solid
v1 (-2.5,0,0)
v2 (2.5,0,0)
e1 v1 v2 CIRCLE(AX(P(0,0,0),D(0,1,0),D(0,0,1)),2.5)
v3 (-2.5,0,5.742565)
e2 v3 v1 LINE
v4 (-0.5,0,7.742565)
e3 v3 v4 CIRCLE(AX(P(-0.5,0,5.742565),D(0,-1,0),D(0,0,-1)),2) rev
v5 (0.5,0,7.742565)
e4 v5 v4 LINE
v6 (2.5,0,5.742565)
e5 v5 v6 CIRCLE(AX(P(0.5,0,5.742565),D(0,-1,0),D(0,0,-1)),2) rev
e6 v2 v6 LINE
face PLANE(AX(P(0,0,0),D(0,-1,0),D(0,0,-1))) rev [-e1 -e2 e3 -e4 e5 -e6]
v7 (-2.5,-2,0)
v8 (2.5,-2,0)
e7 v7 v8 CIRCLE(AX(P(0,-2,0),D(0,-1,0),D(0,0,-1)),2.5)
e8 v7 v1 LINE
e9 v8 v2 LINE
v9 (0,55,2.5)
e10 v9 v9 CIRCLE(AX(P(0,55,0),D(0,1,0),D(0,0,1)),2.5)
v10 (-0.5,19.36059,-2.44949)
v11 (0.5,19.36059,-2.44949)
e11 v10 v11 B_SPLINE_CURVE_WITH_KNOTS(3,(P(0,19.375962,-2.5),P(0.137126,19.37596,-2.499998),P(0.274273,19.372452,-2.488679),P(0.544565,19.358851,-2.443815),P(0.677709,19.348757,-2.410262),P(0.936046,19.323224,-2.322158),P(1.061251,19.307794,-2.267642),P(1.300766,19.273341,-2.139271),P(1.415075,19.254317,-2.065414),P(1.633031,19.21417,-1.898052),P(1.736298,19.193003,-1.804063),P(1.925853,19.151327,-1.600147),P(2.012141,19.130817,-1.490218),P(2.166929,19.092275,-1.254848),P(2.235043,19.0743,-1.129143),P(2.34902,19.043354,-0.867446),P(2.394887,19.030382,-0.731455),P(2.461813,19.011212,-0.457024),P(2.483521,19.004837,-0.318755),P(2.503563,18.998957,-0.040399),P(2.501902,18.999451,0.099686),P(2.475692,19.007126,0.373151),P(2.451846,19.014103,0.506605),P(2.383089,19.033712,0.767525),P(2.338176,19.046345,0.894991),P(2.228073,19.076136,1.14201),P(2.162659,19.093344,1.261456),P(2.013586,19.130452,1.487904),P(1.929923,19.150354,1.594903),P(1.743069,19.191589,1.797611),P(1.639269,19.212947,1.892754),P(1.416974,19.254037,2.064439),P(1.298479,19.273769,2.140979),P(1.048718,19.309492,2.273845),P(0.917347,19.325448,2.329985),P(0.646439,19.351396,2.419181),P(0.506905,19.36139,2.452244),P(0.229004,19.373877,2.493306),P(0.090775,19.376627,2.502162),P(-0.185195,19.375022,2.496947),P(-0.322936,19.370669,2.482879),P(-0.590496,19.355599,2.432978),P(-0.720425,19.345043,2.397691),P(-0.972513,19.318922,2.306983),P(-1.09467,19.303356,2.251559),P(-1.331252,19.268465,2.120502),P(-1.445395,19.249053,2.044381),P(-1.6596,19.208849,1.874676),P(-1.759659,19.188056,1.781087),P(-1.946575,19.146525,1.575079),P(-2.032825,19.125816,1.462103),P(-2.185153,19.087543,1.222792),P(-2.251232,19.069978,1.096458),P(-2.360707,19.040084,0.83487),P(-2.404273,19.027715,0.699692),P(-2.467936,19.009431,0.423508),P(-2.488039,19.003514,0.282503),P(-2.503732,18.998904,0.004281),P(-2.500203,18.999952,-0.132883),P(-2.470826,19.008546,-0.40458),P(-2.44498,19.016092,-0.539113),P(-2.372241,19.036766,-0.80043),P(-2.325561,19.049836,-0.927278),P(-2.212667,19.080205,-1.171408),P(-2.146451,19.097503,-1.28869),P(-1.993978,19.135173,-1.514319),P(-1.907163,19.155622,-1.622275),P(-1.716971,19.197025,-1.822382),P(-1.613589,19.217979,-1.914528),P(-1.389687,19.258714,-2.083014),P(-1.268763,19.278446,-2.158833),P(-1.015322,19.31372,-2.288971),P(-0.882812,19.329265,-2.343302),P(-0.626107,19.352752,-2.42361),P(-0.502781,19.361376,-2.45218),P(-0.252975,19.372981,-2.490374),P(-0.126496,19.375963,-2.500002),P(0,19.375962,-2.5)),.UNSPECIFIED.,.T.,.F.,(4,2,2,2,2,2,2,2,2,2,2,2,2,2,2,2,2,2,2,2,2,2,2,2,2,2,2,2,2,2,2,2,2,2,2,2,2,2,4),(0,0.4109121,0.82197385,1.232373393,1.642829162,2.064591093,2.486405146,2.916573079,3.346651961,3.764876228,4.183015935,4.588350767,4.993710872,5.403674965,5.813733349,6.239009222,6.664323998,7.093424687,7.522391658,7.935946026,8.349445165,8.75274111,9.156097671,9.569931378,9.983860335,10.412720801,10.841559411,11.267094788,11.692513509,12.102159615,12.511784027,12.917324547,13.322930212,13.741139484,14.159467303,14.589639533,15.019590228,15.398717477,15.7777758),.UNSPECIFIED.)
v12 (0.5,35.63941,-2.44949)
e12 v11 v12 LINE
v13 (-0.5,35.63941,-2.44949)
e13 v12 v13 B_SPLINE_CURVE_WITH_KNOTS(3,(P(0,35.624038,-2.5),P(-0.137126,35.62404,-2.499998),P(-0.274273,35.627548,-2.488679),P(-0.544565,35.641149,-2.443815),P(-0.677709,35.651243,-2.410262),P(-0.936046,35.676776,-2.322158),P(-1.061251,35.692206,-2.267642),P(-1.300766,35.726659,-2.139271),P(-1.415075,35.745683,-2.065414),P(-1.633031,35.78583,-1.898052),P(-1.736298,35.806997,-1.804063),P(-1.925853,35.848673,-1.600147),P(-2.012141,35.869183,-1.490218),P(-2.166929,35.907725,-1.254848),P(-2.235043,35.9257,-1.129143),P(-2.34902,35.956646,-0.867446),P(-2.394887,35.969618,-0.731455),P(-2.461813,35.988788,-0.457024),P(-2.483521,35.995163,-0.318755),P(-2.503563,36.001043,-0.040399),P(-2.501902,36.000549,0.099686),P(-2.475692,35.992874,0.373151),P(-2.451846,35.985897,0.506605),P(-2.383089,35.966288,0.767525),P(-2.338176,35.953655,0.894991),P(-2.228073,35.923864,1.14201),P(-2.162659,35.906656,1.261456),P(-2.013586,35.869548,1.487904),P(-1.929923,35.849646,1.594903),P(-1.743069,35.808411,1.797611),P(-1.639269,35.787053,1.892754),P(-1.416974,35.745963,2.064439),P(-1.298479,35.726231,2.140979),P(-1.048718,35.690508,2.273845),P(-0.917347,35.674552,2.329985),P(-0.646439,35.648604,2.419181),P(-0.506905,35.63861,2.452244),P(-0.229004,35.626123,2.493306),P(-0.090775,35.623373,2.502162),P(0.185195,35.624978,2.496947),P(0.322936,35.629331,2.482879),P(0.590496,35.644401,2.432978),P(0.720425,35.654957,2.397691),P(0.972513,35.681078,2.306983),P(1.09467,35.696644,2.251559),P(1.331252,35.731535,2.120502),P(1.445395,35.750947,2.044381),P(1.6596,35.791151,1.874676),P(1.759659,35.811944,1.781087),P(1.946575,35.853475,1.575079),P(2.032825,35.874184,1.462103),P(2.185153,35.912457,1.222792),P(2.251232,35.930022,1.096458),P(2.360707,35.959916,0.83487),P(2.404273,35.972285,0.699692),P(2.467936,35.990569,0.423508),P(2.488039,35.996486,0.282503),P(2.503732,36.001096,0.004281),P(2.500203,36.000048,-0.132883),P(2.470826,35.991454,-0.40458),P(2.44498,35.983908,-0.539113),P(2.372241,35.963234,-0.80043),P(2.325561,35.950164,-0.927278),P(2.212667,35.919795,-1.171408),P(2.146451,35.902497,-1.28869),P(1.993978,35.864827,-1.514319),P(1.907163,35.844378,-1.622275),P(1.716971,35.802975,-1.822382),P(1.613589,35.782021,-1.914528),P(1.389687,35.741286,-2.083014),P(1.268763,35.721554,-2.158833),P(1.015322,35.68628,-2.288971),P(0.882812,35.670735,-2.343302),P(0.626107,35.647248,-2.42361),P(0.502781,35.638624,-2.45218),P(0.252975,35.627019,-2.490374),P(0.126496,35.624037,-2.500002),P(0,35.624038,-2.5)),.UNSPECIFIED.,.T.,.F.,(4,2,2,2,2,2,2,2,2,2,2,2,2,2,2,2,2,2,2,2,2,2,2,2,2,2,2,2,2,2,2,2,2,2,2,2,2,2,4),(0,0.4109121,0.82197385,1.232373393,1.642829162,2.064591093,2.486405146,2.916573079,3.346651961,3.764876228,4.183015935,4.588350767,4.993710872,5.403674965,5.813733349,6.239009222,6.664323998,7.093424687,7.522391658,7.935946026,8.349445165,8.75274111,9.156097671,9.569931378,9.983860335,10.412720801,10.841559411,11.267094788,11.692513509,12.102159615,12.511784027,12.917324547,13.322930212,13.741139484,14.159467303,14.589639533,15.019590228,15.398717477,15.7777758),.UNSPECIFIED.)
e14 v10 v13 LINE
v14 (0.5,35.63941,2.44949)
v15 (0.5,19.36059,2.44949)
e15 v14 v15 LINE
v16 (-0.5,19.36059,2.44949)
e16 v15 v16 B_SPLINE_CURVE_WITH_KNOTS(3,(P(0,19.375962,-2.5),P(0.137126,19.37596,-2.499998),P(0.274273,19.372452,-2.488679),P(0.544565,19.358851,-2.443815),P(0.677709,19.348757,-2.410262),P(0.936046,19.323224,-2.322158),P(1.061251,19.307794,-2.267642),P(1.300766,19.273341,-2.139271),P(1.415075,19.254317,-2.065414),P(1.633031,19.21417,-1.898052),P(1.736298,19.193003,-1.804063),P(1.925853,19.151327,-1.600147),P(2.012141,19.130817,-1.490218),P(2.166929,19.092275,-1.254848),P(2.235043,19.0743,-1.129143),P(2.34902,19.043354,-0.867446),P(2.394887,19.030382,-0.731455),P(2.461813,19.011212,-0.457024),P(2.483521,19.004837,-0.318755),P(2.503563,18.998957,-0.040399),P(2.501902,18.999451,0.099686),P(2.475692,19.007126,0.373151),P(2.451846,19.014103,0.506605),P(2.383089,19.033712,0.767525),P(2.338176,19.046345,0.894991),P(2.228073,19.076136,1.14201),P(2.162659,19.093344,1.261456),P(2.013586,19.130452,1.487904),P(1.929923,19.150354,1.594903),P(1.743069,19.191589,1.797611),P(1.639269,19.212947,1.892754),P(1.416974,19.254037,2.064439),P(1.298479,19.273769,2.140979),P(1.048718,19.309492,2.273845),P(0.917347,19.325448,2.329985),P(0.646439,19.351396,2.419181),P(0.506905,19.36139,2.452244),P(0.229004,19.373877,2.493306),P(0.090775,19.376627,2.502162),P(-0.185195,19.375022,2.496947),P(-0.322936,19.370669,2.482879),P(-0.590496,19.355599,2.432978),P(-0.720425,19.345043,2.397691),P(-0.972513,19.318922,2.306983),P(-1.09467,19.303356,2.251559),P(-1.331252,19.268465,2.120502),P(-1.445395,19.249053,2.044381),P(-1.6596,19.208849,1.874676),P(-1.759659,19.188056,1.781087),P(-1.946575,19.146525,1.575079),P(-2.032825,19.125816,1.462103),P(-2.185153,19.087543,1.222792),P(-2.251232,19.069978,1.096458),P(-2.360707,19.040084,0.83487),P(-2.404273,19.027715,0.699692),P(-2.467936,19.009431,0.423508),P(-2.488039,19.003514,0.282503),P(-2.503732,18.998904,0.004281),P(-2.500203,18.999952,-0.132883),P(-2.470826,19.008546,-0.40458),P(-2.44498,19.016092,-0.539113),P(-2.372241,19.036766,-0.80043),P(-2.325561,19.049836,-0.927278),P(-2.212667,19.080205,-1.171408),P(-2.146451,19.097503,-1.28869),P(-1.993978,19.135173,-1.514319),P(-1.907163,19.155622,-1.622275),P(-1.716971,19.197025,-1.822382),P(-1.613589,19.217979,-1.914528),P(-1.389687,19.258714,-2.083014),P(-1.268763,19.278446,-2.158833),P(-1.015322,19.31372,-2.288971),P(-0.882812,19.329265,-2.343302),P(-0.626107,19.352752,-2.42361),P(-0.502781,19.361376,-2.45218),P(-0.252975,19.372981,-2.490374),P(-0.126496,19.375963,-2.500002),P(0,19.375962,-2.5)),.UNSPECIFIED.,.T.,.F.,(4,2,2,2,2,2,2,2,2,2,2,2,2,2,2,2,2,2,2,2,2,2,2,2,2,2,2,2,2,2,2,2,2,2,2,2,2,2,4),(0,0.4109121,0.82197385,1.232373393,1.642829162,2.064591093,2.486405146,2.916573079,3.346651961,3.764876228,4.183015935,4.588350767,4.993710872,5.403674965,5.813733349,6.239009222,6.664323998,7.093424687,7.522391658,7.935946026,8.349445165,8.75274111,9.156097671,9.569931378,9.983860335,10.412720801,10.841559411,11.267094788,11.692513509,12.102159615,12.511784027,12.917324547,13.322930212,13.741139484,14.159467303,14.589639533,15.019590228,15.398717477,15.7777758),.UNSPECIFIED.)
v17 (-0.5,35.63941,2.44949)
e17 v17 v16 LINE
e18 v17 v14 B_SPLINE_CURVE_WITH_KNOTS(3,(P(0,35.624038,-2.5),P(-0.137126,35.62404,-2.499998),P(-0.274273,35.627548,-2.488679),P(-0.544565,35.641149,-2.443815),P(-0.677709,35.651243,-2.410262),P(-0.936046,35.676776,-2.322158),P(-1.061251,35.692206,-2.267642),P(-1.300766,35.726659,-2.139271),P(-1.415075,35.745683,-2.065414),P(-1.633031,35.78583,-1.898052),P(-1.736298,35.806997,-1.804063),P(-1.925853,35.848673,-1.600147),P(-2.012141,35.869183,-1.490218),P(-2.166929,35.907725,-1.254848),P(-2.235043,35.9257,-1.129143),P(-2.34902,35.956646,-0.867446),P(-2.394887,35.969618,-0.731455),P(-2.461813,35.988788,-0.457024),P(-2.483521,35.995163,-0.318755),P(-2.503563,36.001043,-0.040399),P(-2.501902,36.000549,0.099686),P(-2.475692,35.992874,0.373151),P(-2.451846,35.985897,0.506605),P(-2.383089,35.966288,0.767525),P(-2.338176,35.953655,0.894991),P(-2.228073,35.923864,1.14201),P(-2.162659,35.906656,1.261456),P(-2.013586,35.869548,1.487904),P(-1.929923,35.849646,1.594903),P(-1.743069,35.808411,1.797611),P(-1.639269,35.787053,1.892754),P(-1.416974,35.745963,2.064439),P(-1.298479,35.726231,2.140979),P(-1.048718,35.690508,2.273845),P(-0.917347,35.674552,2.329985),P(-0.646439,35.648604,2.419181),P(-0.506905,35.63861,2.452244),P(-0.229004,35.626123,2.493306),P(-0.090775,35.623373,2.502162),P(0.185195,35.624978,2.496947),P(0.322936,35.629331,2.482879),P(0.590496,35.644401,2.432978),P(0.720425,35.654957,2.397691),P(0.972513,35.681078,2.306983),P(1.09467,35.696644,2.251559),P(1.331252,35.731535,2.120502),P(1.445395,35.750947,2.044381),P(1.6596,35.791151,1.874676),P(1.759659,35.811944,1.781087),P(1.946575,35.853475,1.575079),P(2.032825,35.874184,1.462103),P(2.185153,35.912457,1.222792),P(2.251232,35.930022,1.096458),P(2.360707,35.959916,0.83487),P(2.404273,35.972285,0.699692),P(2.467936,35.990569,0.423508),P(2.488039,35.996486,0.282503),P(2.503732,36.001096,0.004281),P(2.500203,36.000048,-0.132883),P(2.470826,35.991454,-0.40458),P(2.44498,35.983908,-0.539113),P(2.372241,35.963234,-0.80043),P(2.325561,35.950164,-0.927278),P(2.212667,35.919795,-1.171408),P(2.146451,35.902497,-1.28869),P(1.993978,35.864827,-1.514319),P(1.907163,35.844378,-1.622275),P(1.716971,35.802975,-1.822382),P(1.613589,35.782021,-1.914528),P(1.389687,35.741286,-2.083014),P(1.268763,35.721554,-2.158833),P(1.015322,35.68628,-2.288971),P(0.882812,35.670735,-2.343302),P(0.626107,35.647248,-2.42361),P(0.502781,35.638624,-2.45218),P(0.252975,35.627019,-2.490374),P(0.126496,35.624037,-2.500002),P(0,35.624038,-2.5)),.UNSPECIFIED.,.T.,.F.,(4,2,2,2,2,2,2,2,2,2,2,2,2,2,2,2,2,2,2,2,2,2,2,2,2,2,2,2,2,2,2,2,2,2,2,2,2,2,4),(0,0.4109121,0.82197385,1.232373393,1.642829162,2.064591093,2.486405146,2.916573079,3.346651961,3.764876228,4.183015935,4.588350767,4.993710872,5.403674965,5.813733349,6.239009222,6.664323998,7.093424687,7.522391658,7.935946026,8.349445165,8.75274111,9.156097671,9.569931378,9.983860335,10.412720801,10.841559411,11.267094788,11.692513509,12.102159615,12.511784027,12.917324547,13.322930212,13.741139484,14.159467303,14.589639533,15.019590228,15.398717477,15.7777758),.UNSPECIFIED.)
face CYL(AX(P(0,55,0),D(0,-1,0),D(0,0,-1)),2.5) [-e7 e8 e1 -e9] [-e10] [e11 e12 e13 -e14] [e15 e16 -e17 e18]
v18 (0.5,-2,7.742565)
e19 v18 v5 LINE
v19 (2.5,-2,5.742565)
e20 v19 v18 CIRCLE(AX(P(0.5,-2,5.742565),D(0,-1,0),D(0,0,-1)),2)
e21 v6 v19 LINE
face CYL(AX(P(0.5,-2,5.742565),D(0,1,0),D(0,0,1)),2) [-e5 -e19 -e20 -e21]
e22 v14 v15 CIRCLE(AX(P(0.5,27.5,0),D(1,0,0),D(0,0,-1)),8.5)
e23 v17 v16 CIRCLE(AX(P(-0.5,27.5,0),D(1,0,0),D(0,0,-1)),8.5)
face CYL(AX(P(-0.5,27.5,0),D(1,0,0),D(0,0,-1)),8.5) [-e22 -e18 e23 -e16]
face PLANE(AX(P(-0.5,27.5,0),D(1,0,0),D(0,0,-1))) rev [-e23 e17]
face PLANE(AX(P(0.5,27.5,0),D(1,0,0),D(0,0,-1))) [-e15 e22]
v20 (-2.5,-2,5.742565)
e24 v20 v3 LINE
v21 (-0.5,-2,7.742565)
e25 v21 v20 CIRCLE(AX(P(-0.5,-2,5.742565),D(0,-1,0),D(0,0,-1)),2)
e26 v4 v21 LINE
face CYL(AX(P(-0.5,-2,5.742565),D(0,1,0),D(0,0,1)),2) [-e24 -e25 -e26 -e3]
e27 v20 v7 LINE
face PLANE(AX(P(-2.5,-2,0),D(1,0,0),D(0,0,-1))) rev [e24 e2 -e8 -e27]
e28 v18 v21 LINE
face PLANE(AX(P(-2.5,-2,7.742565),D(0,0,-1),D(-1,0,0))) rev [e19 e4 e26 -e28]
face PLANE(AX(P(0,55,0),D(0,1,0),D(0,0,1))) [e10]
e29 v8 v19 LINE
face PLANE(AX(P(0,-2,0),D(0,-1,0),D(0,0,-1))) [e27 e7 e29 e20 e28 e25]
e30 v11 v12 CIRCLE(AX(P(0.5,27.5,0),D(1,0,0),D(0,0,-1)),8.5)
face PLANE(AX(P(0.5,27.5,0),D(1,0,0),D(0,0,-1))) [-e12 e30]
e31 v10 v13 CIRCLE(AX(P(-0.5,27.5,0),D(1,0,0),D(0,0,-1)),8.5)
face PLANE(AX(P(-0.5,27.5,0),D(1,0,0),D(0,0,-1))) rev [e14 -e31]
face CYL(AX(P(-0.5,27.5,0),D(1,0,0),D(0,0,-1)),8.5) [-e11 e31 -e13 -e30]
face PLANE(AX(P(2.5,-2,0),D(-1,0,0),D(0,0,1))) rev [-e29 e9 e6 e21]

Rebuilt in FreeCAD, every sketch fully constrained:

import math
import FreeCAD as App
import Part
import Sketcher
from FreeCAD import Vector
Q = App.Units.Quantity


def edges_at(feature, points):
    """Names of the edges that pass closest to the given points."""
    edges = feature.Shape.Edges
    near = lambda p: min(range(len(edges)), key=lambda i: edges[i].distToShape(Part.Vertex(*p))[0])
    return sorted({f"Edge{near(p) + 1}" for p in points})

doc = App.newDocument("Part")
body = doc.addObject("PartDesign::Body", "Body")

# Sketch on XZ plane
sketch1 = doc.addObject("Sketcher::SketchObject", "Sketch")
body.addObject(sketch1)
sketch1.AttachmentSupport = (doc.XZ_Plane, [""])
sketch1.MapMode = "FlatFace"
sketch1.addGeometry(Part.Circle(Vector(0, 0, 0), Vector(0, 0, 1), 2.5), False)
sketch1.addConstraint([
    Sketcher.Constraint("Coincident", 0, 3, -1, 1),
    Sketcher.Constraint("Diameter", 0, Q("5 mm")),
])
pad1 = doc.addObject("PartDesign::Pad", "Pad")
body.addObject(pad1)
pad1.Profile = sketch1
pad1.Length = 55
pad1.Reversed = True

# Sketch on YZ plane
sketch2 = doc.addObject("Sketcher::SketchObject", "Sketch001")
body.addObject(sketch2)
sketch2.AttachmentSupport = (doc.YZ_Plane, [""])
sketch2.MapMode = "FlatFace"
sketch2.addGeometry(Part.Circle(Vector(28, 0, 0), Vector(0, 0, 1), 8), False)
sketch2.addConstraint([
    Sketcher.Constraint("PointOnObject", 0, 3, -1),
    Sketcher.Constraint("Diameter", 0, Q("17 mm")),
    Sketcher.Constraint("DistanceX", -1, 1, 0, 3, Q("27.5 mm")),
])
pad2 = doc.addObject("PartDesign::Pad", "Pad001")
body.addObject(pad2)
pad2.Profile = sketch2
pad2.Type = "TwoLengths"
pad2.Length = 0.5
pad2.Length2 = 0.5

# Sketch on XZ plane
sketch3 = doc.addObject("Sketcher::SketchObject", "Sketch002")
body.addObject(sketch3)
sketch3.AttachmentSupport = (doc.XZ_Plane, [""])
sketch3.MapMode = "FlatFace"
sketch3.AttachmentOffset = App.Placement(Vector(0, 0, 2), App.Rotation())
sketch3.addGeometry([
    Part.LineSegment(Vector(-2.5, 7.7, 0), Vector(-2.5, 0, 0)),
    Part.ArcOfCircle(Part.Circle(Vector(0, 0, 0), Vector(0, 0, 1), 2.5), math.radians(180), math.radians(360)),
    Part.LineSegment(Vector(2.5, 0, 0), Vector(2.5, 7.7, 0)),
    Part.LineSegment(Vector(2.5, 7.7, 0), Vector(-2.5, 7.7, 0)),
], False)
sketch3.addConstraint([
    Sketcher.Constraint("Tangent", 0, 2, 1, 1),
    Sketcher.Constraint("Tangent", 1, 2, 2, 1),
    Sketcher.Constraint("Coincident", 2, 2, 3, 1),
    Sketcher.Constraint("Coincident", 3, 2, 0, 1),
    Sketcher.Constraint("Vertical", 0),
    Sketcher.Constraint("Vertical", 2),
    Sketcher.Constraint("Horizontal", 3),
    Sketcher.Constraint("Coincident", 1, 3, -1, 1),
    Sketcher.Constraint("Radius", 1, Q("2.5 mm")),
    Sketcher.Constraint("DistanceY", 0, 2, 0, 1, Q("7.742565 mm")),
])
pad3 = doc.addObject("PartDesign::Pad", "Pad002")
body.addObject(pad3)
pad3.Profile = sketch3
pad3.Length = 2
pad3.Reversed = True
doc.recompute()

fillet = doc.addObject("PartDesign::Fillet", "Fillet")
body.addObject(fillet)
fillet.Base = (pad3, edges_at(pad3, [(2.5, -1, 7.743), (-2.5, -1, 7.743)]))
fillet.Radius = 2

doc.recompute()
